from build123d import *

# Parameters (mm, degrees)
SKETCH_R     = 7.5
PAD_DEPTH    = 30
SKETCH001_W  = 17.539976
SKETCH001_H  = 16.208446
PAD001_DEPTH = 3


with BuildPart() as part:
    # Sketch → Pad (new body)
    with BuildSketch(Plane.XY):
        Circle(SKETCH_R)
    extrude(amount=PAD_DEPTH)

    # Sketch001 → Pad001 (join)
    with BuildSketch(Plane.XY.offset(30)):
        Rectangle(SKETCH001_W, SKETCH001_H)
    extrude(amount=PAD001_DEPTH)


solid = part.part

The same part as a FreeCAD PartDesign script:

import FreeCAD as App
import Part
import Sketcher

V = App.Vector


def add_polygon(sketch, points):
    """Adds a closed chain of lines whose ends are joined by coincident constraints."""
    first, n = sketch.GeometryCount, len(points)
    for a, b in zip(points, points[1:] + points[:1]):
        sketch.addGeometry(Part.LineSegment(App.Vector(*a, 0), App.Vector(*b, 0)), False)
    for i in range(n):
        sketch.addConstraint(Sketcher.Constraint("Coincident", first + i, 2, first + (i + 1) % n, 1))

doc = App.newDocument("Part")
body = doc.addObject("PartDesign::Body", "Body")

sketch1 = doc.addObject("Sketcher::SketchObject", "Sketch")
body.addObject(sketch1)
sketch1.AttachmentSupport = (doc.XY_Plane, [""])
sketch1.MapMode = "FlatFace"
sketch1.addGeometry(Part.Circle(V(0, 0, 0), V(0, 0, 1), 8), False)
sketch1.addConstraint([
    Sketcher.Constraint("Coincident", 0, 3, -1, 1),
    Sketcher.Constraint("Diameter", 0, 15.0),
])
pad1 = doc.addObject("PartDesign::Pad", "Pad")
body.addObject(pad1)
pad1.Profile = sketch1
pad1.Length = 30

sketch2 = doc.addObject("Sketcher::SketchObject", "Sketch001")
body.addObject(sketch2)
sketch2.AttachmentSupport = (doc.XY_Plane, [""])
sketch2.MapMode = "FlatFace"
sketch2.AttachmentOffset = App.Placement(V(0, 0, 30), App.Rotation())
add_polygon(sketch2, [(-9, 8), (-9, -8), (9, -8), (9, 8)])
sketch2.addConstraint([
    Sketcher.Constraint("Vertical", 0),
    Sketcher.Constraint("Horizontal", 1),
    Sketcher.Constraint("Vertical", 2),
    Sketcher.Constraint("Horizontal", 3),
    Sketcher.Constraint("Symmetric", 0, 2, 2, 2, -1, 1),
    Sketcher.Constraint("DistanceX", 1, 1, 1, 2, 17.539976),
    Sketcher.Constraint("DistanceY", 0, 2, 0, 1, 16.208446),
])
pad2 = doc.addObject("PartDesign::Pad", "Pad001")
body.addObject(pad2)
pad2.Profile = sketch2
pad2.Length = 3

doc.recompute()
